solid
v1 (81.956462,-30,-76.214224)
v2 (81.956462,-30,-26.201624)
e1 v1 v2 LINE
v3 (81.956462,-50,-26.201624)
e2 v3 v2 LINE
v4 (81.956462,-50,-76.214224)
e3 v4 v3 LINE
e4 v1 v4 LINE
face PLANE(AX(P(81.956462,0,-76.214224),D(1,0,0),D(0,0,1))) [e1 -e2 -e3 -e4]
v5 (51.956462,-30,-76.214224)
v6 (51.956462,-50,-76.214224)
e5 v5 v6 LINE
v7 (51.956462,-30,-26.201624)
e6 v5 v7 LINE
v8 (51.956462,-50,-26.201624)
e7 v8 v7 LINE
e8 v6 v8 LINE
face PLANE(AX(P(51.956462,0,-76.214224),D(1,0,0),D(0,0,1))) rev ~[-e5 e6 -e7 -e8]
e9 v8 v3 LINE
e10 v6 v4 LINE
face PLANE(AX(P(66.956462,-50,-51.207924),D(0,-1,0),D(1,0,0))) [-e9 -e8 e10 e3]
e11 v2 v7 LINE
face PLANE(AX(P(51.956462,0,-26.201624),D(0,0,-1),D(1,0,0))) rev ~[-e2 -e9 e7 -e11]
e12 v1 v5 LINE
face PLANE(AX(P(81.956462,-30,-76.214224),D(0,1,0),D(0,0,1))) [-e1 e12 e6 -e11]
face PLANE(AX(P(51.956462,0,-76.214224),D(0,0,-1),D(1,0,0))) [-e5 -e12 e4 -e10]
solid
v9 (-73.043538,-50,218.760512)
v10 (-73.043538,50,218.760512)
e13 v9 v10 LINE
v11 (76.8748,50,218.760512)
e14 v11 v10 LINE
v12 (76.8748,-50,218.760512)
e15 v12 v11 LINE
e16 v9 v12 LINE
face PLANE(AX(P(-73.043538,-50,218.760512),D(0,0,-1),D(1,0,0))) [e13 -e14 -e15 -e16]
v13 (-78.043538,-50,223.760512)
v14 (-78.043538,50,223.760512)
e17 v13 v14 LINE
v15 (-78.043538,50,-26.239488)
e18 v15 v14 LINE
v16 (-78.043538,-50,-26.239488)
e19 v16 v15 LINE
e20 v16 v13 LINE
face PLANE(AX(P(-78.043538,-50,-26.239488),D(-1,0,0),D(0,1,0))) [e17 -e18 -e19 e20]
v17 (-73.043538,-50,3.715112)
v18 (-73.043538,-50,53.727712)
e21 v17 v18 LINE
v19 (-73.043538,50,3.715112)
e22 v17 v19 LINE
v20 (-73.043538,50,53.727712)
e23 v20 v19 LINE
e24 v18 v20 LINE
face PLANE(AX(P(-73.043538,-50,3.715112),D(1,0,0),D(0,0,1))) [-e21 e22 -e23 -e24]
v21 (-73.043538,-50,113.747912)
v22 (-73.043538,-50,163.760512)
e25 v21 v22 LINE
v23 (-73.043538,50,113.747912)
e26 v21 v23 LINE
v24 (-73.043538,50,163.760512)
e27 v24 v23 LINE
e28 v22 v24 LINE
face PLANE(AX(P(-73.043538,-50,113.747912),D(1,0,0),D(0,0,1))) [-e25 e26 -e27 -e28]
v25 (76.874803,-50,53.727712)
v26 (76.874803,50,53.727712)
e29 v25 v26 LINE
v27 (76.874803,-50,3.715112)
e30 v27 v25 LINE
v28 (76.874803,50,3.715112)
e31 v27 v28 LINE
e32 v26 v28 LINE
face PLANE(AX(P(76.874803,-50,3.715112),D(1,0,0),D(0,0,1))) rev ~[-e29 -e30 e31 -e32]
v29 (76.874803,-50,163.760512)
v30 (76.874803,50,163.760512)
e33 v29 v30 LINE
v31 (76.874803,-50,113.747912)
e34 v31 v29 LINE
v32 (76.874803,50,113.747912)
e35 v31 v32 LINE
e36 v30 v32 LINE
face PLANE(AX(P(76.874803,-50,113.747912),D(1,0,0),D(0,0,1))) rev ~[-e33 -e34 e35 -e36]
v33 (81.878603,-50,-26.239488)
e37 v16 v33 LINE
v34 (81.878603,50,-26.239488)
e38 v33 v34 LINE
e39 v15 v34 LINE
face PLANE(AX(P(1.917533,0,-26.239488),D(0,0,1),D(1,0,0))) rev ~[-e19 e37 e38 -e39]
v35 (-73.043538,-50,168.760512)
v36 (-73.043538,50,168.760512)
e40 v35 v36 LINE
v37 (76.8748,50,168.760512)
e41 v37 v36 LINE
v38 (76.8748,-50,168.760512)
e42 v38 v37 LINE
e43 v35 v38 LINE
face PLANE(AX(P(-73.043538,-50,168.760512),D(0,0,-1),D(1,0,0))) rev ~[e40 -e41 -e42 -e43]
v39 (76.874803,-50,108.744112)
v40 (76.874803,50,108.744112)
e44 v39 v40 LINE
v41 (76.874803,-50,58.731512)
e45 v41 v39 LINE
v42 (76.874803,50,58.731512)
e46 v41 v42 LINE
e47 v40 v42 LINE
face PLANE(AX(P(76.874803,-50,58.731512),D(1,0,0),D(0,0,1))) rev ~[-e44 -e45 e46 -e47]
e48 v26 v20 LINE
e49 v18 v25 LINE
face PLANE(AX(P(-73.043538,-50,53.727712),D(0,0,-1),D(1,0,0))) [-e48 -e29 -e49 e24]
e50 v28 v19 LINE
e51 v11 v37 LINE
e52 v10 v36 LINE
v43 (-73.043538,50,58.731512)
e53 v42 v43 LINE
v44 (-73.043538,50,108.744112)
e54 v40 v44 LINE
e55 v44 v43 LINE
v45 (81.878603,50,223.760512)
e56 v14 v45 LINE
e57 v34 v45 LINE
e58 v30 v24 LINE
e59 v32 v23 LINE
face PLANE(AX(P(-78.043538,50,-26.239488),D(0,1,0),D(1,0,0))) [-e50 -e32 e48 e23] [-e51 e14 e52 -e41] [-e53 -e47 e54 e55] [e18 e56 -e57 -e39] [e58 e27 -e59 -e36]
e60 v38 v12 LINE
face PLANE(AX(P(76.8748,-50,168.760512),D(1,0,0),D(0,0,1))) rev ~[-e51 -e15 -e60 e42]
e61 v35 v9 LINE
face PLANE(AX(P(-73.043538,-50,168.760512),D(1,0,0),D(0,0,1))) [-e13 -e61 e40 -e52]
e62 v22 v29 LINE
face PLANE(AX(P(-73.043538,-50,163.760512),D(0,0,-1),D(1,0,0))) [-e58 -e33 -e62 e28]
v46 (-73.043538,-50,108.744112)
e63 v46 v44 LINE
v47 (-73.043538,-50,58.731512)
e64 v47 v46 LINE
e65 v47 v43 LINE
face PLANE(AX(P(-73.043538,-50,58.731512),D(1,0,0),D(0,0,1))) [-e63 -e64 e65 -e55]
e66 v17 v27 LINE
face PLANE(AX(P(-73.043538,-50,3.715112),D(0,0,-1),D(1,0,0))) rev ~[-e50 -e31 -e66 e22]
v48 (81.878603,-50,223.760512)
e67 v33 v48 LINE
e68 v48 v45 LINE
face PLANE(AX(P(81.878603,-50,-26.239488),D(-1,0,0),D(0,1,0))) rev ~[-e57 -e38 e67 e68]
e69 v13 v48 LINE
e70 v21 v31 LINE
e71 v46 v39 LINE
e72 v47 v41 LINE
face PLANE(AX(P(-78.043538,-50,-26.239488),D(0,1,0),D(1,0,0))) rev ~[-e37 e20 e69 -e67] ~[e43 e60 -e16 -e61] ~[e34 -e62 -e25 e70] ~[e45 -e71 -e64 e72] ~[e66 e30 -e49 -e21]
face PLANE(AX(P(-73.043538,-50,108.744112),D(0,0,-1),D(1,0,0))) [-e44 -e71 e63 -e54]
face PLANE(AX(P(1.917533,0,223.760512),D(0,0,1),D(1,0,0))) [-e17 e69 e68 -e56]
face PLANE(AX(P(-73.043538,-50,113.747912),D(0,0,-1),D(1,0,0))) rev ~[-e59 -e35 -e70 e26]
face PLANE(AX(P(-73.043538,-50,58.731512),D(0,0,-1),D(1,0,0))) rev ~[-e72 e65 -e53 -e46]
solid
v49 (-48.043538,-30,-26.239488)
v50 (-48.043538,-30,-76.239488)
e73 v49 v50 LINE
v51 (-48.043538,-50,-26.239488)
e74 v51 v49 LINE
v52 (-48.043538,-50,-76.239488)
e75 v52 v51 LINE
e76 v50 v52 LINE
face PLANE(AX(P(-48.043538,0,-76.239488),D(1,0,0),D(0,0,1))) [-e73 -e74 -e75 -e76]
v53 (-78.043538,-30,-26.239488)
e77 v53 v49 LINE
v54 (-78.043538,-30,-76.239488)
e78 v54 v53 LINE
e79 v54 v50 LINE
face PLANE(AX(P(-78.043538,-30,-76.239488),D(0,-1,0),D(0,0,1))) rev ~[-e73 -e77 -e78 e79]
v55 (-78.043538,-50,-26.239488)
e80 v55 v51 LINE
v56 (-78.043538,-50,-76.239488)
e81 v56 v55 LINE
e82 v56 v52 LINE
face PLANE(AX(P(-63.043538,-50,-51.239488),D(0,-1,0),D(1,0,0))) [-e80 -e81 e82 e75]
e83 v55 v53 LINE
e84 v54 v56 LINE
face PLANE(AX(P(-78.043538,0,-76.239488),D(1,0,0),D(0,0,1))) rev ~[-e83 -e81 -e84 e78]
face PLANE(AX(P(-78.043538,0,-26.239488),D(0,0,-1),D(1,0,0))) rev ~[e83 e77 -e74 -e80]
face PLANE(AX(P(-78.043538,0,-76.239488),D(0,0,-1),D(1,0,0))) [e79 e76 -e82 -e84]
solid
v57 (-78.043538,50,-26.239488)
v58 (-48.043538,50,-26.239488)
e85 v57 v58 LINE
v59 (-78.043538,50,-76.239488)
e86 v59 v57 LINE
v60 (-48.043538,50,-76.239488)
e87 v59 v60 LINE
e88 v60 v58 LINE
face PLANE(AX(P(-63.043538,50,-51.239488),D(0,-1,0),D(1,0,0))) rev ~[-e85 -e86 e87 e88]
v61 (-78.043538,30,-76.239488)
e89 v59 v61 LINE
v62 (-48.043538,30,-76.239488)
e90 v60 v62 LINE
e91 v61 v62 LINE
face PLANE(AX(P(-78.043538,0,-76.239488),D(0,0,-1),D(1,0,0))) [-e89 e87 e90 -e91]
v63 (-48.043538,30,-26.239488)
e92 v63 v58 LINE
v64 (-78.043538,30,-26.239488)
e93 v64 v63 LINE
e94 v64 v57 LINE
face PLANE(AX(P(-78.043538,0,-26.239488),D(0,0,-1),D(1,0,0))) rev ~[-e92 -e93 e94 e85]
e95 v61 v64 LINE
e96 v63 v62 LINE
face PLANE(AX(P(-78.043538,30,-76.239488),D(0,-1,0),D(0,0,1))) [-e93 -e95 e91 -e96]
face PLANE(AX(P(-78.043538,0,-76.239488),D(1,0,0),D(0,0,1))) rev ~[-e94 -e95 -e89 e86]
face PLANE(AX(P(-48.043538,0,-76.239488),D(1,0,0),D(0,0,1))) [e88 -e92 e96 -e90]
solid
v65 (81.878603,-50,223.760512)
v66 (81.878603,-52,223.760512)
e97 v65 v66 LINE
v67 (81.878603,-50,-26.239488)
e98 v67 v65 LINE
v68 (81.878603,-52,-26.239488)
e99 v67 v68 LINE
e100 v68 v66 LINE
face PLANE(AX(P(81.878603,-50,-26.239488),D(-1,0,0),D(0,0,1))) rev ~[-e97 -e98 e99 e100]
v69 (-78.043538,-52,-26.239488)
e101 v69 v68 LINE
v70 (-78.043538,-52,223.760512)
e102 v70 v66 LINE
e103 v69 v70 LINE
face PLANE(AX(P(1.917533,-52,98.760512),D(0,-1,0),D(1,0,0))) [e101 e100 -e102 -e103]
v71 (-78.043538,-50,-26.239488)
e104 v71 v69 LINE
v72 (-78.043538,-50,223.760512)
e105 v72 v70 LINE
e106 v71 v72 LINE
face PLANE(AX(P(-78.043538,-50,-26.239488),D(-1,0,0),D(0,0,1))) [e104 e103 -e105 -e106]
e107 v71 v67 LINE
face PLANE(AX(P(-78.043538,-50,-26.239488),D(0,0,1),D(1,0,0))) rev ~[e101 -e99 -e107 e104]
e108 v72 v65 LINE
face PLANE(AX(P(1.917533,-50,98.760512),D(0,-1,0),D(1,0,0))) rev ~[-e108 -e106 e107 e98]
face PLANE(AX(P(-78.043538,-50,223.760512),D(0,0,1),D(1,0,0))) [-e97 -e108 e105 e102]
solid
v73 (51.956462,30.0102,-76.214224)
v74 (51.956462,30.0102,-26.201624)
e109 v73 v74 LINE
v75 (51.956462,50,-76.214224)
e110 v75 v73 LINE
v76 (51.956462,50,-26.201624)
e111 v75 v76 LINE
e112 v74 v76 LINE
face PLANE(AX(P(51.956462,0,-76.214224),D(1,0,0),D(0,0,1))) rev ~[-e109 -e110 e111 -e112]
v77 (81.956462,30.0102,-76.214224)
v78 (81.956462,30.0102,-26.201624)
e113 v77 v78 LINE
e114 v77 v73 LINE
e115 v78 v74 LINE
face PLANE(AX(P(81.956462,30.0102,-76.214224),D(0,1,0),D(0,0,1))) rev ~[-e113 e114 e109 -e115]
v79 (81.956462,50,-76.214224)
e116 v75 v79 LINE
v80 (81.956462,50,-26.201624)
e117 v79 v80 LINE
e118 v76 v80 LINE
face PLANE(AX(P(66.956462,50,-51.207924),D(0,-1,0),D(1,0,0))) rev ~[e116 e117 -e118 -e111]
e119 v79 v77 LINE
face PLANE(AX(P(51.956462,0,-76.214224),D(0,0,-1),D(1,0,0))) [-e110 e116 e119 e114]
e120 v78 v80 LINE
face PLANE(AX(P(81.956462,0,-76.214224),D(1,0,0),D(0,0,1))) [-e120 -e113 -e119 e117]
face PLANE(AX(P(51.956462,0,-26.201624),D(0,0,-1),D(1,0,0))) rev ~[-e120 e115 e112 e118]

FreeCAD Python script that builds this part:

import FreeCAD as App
import Part
import Sketcher

doc = App.newDocument("Part")
body = doc.addObject("PartDesign::Body", "Body")
body.AllowCompound = True

# Sketch on XZ plane
sketch1 = doc.addObject("Sketcher::SketchObject", "Sketch")
body.addObject(sketch1)
sketch1.AttachmentSupport = (doc.XZ_Plane, [""])
sketch1.MapMode = "FlatFace"
sketch1.addGeometry([
    Part.LineSegment(App.Vector(-78, -26, 0), App.Vector(-78, -76, 0)),
    Part.LineSegment(App.Vector(-78, -76, 0), App.Vector(-48, -76, 0)),
    Part.LineSegment(App.Vector(-48, -76, 0), App.Vector(-48, -26, 0)),
    Part.LineSegment(App.Vector(-48, -26, 0), App.Vector(-78, -26, 0)),
], False)
sketch1.addConstraint([
    Sketcher.Constraint("Coincident", 0, 2, 1, 1),
    Sketcher.Constraint("Coincident", 1, 2, 2, 1),
    Sketcher.Constraint("Coincident", 2, 2, 3, 1),
    Sketcher.Constraint("Coincident", 3, 2, 0, 1),
    Sketcher.Constraint("Vertical", 0),
    Sketcher.Constraint("Horizontal", 1),
    Sketcher.Constraint("Vertical", 2),
    Sketcher.Constraint("Horizontal", 3),
    Sketcher.Constraint("DistanceX", 1, 1, 1, 2, 30.0),
    Sketcher.Constraint("DistanceY", 0, 2, 0, 1, 50.0),
    Sketcher.Constraint("DistanceX", 0, 2, -1, 1, 78.043538),
    Sketcher.Constraint("DistanceY", 0, 2, -1, 1, 76.239488),
])
pad1 = doc.addObject("PartDesign::Pad", "Pad")
body.addObject(pad1)
pad1.Profile = sketch1
pad1.Length = 100
pad1.Midplane = True

# Sketch on YZ plane
sketch2 = doc.addObject("Sketcher::SketchObject", "Sketch001")
body.addObject(sketch2)
sketch2.AttachmentSupport = (doc.YZ_Plane, [""])
sketch2.MapMode = "FlatFace"
sketch2.AttachmentOffset = App.Placement(App.Vector(0, 0, -78.043538), App.Rotation())
sketch2.addGeometry([
    Part.LineSegment(App.Vector(30, -26, 0), App.Vector(30, -76, 0)),
    Part.LineSegment(App.Vector(30, -76, 0), App.Vector(-30, -76, 0)),
    Part.LineSegment(App.Vector(-30, -76, 0), App.Vector(-30, -26, 0)),
    Part.LineSegment(App.Vector(-30, -26, 0), App.Vector(30, -26, 0)),
], False)
sketch2.addConstraint([
    Sketcher.Constraint("Coincident", 0, 2, 1, 1),
    Sketcher.Constraint("Coincident", 1, 2, 2, 1),
    Sketcher.Constraint("Coincident", 2, 2, 3, 1),
    Sketcher.Constraint("Coincident", 3, 2, 0, 1),
    Sketcher.Constraint("Vertical", 0),
    Sketcher.Constraint("Horizontal", 1),
    Sketcher.Constraint("Vertical", 2),
    Sketcher.Constraint("Horizontal", 3),
    Sketcher.Constraint("DistanceX", 1, 2, 1, 1, 60.0),
    Sketcher.Constraint("DistanceY", 0, 2, 0, 1, 50.0),
    Sketcher.Constraint("DistanceX", -1, 1, 0, 2, 30.0),
    Sketcher.Constraint("DistanceY", 0, 2, -1, 1, 76.239488),
])
pocket1 = doc.addObject("PartDesign::Pocket", "Pocket")
body.addObject(pocket1)
pocket1.Profile = sketch2
pocket1.Type = "ThroughAll"
pocket1.Reversed = True
body2 = doc.addObject("PartDesign::Body", "Body001")
body2.AllowCompound = True

# Sketch on XZ plane
sketch3 = doc.addObject("Sketcher::SketchObject", "Sketch002")
body2.addObject(sketch3)
sketch3.AttachmentSupport = (doc.getObject("XZ_Plane001"), [""])
sketch3.MapMode = "FlatFace"
sketch3.addGeometry([
    Part.LineSegment(App.Vector(52, -26, 0), App.Vector(52, -76, 0)),
    Part.LineSegment(App.Vector(52, -76, 0), App.Vector(82, -76, 0)),
    Part.LineSegment(App.Vector(82, -76, 0), App.Vector(82, -26, 0)),
    Part.LineSegment(App.Vector(82, -26, 0), App.Vector(52, -26, 0)),
], False)
sketch3.addConstraint([
    Sketcher.Constraint("Coincident", 0, 2, 1, 1),
    Sketcher.Constraint("Coincident", 1, 2, 2, 1),
    Sketcher.Constraint("Coincident", 2, 2, 3, 1),
    Sketcher.Constraint("Coincident", 3, 2, 0, 1),
    Sketcher.Constraint("Vertical", 0),
    Sketcher.Constraint("Horizontal", 1),
    Sketcher.Constraint("Vertical", 2),
    Sketcher.Constraint("Horizontal", 3),
    Sketcher.Constraint("DistanceX", 1, 1, 1, 2, 30.0),
    Sketcher.Constraint("DistanceY", 0, 2, 0, 1, 50.0126),
    Sketcher.Constraint("DistanceX", -1, 1, 0, 2, 51.956462),
    Sketcher.Constraint("DistanceY", 0, 2, -1, 1, 76.214224),
])
pad2 = doc.addObject("PartDesign::Pad", "Pad001")
body2.addObject(pad2)
pad2.Profile = sketch3
pad2.Length = 100
pad2.Midplane = True

# Sketch on YZ plane
sketch4 = doc.addObject("Sketcher::SketchObject", "Sketch003")
body2.addObject(sketch4)
sketch4.AttachmentSupport = (doc.getObject("YZ_Plane001"), [""])
sketch4.MapMode = "FlatFace"
sketch4.AttachmentOffset = App.Placement(App.Vector(0, 0, 81.956462), App.Rotation())
sketch4.addGeometry([
    Part.LineSegment(App.Vector(-30, -26, 0), App.Vector(-30, -76, 0)),
    Part.LineSegment(App.Vector(-30, -76, 0), App.Vector(30, -76, 0)),
    Part.LineSegment(App.Vector(30, -76, 0), App.Vector(30, -26, 0)),
    Part.LineSegment(App.Vector(30, -26, 0), App.Vector(-30, -26, 0)),
], False)
sketch4.addConstraint([
    Sketcher.Constraint("Coincident", 0, 2, 1, 1),
    Sketcher.Constraint("Coincident", 1, 2, 2, 1),
    Sketcher.Constraint("Coincident", 2, 2, 3, 1),
    Sketcher.Constraint("Coincident", 3, 2, 0, 1),
    Sketcher.Constraint("Vertical", 0),
    Sketcher.Constraint("Horizontal", 1),
    Sketcher.Constraint("Vertical", 2),
    Sketcher.Constraint("Horizontal", 3),
    Sketcher.Constraint("DistanceX", 0, 2, -1, 1, 30.0),
    Sketcher.Constraint("DistanceX", 1, 1, 1, 2, 60.0102),
    Sketcher.Constraint("DistanceY", 0, 2, 0, 1, 50.0126),
    Sketcher.Constraint("DistanceY", 0, 2, -1, 1, 76.214224),
])
pocket2 = doc.addObject("PartDesign::Pocket", "Pocket001")
body2.addObject(pocket2)
pocket2.Profile = sketch4
pocket2.Type = "ThroughAll"
body3 = doc.addObject("PartDesign::Body", "Body002")

# Sketch on XY plane
sketch5 = doc.addObject("Sketcher::SketchObject", "Sketch004")
body3.addObject(sketch5)
sketch5.AttachmentSupport = (doc.getObject("XY_Plane002"), [""])
sketch5.MapMode = "FlatFace"
sketch5.AttachmentOffset = App.Placement(App.Vector(0, 0, -26.239488), App.Rotation())
sketch5.addGeometry([
    Part.LineSegment(App.Vector(-78, 50, 0), App.Vector(-78, -50, 0)),
    Part.LineSegment(App.Vector(-78, -50, 0), App.Vector(82, -50, 0)),
    Part.LineSegment(App.Vector(82, -50, 0), App.Vector(82, 50, 0)),
    Part.LineSegment(App.Vector(82, 50, 0), App.Vector(-78, 50, 0)),
], False)
sketch5.addConstraint([
    Sketcher.Constraint("Coincident", 0, 2, 1, 1),
    Sketcher.Constraint("Coincident", 1, 2, 2, 1),
    Sketcher.Constraint("Coincident", 2, 2, 3, 1),
    Sketcher.Constraint("Coincident", 3, 2, 0, 1),
    Sketcher.Constraint("Vertical", 0),
    Sketcher.Constraint("Horizontal", 1),
    Sketcher.Constraint("Vertical", 2),
    Sketcher.Constraint("Horizontal", 3),
    Sketcher.Constraint("DistanceY", 0, 2, 0, 1, 100.0),
    Sketcher.Constraint("DistanceY", 0, 2, -1, 1, 50.0),
    Sketcher.Constraint("DistanceX", 1, 1, 1, 2, 159.92214),
    Sketcher.Constraint("DistanceX", 0, 2, -1, 1, 78.043538),
])
pad3 = doc.addObject("PartDesign::Pad", "Pad002")
body3.addObject(pad3)
pad3.Profile = sketch5
pad3.Length = 250

# Sketch on XZ plane
sketch6 = doc.addObject("Sketcher::SketchObject", "Sketch005")
body3.addObject(sketch6)
sketch6.AttachmentSupport = (doc.getObject("XZ_Plane002"), [""])
sketch6.MapMode = "FlatFace"
sketch6.AttachmentOffset = App.Placement(App.Vector(0, 0, 50), App.Rotation())
sketch6.addGeometry([
    Part.LineSegment(App.Vector(-73, 219, 0), App.Vector(-73, 169, 0)),
    Part.LineSegment(App.Vector(-73, 169, 0), App.Vector(77, 169, 0)),
    Part.LineSegment(App.Vector(77, 169, 0), App.Vector(77, 219, 0)),
    Part.LineSegment(App.Vector(77, 219, 0), App.Vector(-73, 219, 0)),
], False)
sketch6.addConstraint([
    Sketcher.Constraint("Coincident", 0, 2, 1, 1),
    Sketcher.Constraint("Coincident", 1, 2, 2, 1),
    Sketcher.Constraint("Coincident", 2, 2, 3, 1),
    Sketcher.Constraint("Coincident", 3, 2, 0, 1),
    Sketcher.Constraint("Vertical", 0),
    Sketcher.Constraint("Horizontal", 1),
    Sketcher.Constraint("Vertical", 2),
    Sketcher.Constraint("Horizontal", 3),
    Sketcher.Constraint("DistanceY", 0, 2, 0, 1, 50.0),
    Sketcher.Constraint("DistanceX", -1, 1, 1, 2, 76.8748),
    Sketcher.Constraint("DistanceX", 1, 1, 1, 2, 149.918337),
    Sketcher.Constraint("DistanceY", -1, 1, 0, 2, 168.760512),
])
pocket3 = doc.addObject("PartDesign::Pocket", "Pocket002")
body3.addObject(pocket3)
pocket3.Profile = sketch6
pocket3.Type = "ThroughAll"

# Sketch on XZ plane
sketch7 = doc.addObject("Sketcher::SketchObject", "Sketch006")
body3.addObject(sketch7)
sketch7.AttachmentSupport = (doc.getObject("XZ_Plane002"), [""])
sketch7.MapMode = "FlatFace"
sketch7.AttachmentOffset = App.Placement(App.Vector(0, 0, 50), App.Rotation())
sketch7.addGeometry([
    Part.LineSegment(App.Vector(-73, 164, 0), App.Vector(-73, 114, 0)),
    Part.LineSegment(App.Vector(-73, 114, 0), App.Vector(77, 114, 0)),
    Part.LineSegment(App.Vector(77, 114, 0), App.Vector(77, 164, 0)),
    Part.LineSegment(App.Vector(77, 164, 0), App.Vector(-73, 164, 0)),
], False)
sketch7.addConstraint([
    Sketcher.Constraint("Coincident", 0, 2, 1, 1),
    Sketcher.Constraint("Coincident", 1, 2, 2, 1),
    Sketcher.Constraint("Coincident", 2, 2, 3, 1),
    Sketcher.Constraint("Coincident", 3, 2, 0, 1),
    Sketcher.Constraint("Vertical", 0),
    Sketcher.Constraint("Horizontal", 1),
    Sketcher.Constraint("Vertical", 2),
    Sketcher.Constraint("Horizontal", 3),
    Sketcher.Constraint("DistanceY", 0, 2, 0, 1, 50.0126),
    Sketcher.Constraint("DistanceX", 1, 1, 1, 2, 149.91834),
    Sketcher.Constraint("DistanceX", 0, 2, -1, 1, 73.043538),
    Sketcher.Constraint("DistanceY", -1, 1, 0, 2, 113.747912),
])
pocket4 = doc.addObject("PartDesign::Pocket", "Pocket003")
body3.addObject(pocket4)
pocket4.Profile = sketch7
pocket4.Type = "ThroughAll"

# Sketch on XZ plane
sketch8 = doc.addObject("Sketcher::SketchObject", "Sketch007")
body3.addObject(sketch8)
sketch8.AttachmentSupport = (doc.getObject("XZ_Plane002"), [""])
sketch8.MapMode = "FlatFace"
sketch8.AttachmentOffset = App.Placement(App.Vector(0, 0, 50), App.Rotation())
sketch8.addGeometry([
    Part.LineSegment(App.Vector(-73, 109, 0), App.Vector(-73, 59, 0)),
    Part.LineSegment(App.Vector(-73, 59, 0), App.Vector(77, 59, 0)),
    Part.LineSegment(App.Vector(77, 59, 0), App.Vector(77, 109, 0)),
    Part.LineSegment(App.Vector(77, 109, 0), App.Vector(-73, 109, 0)),
], False)
sketch8.addConstraint([
    Sketcher.Constraint("Coincident", 0, 2, 1, 1),
    Sketcher.Constraint("Coincident", 1, 2, 2, 1),
    Sketcher.Constraint("Coincident", 2, 2, 3, 1),
    Sketcher.Constraint("Coincident", 3, 2, 0, 1),
    Sketcher.Constraint("Vertical", 0),
    Sketcher.Constraint("Horizontal", 1),
    Sketcher.Constraint("Vertical", 2),
    Sketcher.Constraint("Horizontal", 3),
    Sketcher.Constraint("DistanceY", 0, 2, 0, 1, 50.0126),
    Sketcher.Constraint("DistanceX", 1, 1, 1, 2, 149.91834),
    Sketcher.Constraint("DistanceX", 0, 2, -1, 1, 73.043538),
    Sketcher.Constraint("DistanceY", -1, 1, 0, 2, 58.731512),
])
pocket5 = doc.addObject("PartDesign::Pocket", "Pocket004")
body3.addObject(pocket5)
pocket5.Profile = sketch8
pocket5.Type = "ThroughAll"

# Sketch on XZ plane
sketch9 = doc.addObject("Sketcher::SketchObject", "Sketch008")
body3.addObject(sketch9)
sketch9.AttachmentSupport = (doc.getObject("XZ_Plane002"), [""])
sketch9.MapMode = "FlatFace"
sketch9.AttachmentOffset = App.Placement(App.Vector(0, 0, 50), App.Rotation())
sketch9.addGeometry([
    Part.LineSegment(App.Vector(-73, 54, 0), App.Vector(-73, 4, 0)),
    Part.LineSegment(App.Vector(-73, 4, 0), App.Vector(77, 4, 0)),
    Part.LineSegment(App.Vector(77, 4, 0), App.Vector(77, 54, 0)),
    Part.LineSegment(App.Vector(77, 54, 0), App.Vector(-73, 54, 0)),
], False)
sketch9.addConstraint([
    Sketcher.Constraint("Coincident", 0, 2, 1, 1),
    Sketcher.Constraint("Coincident", 1, 2, 2, 1),
    Sketcher.Constraint("Coincident", 2, 2, 3, 1),
    Sketcher.Constraint("Coincident", 3, 2, 0, 1),
    Sketcher.Constraint("Vertical", 0),
    Sketcher.Constraint("Horizontal", 1),
    Sketcher.Constraint("Vertical", 2),
    Sketcher.Constraint("Horizontal", 3),
    Sketcher.Constraint("DistanceY", 0, 2, 0, 1, 50.0126),
    Sketcher.Constraint("DistanceX", 1, 1, 1, 2, 149.91834),
    Sketcher.Constraint("DistanceX", 0, 2, -1, 1, 73.043538),
    Sketcher.Constraint("DistanceY", -1, 1, 0, 2, 3.715112),
])
pocket6 = doc.addObject("PartDesign::Pocket", "Pocket005")
body3.addObject(pocket6)
pocket6.Profile = sketch9
pocket6.Type = "ThroughAll"
body4 = doc.addObject("PartDesign::Body", "Body003")

# Sketch on XZ plane
sketch10 = doc.addObject("Sketcher::SketchObject", "Sketch009")
body4.addObject(sketch10)
sketch10.AttachmentSupport = (doc.getObject("XZ_Plane003"), [""])
sketch10.MapMode = "FlatFace"
sketch10.AttachmentOffset = App.Placement(App.Vector(0, 0, 50), App.Rotation())
sketch10.addGeometry([
    Part.LineSegment(App.Vector(-78, 224, 0), App.Vector(-78, -26, 0)),
    Part.LineSegment(App.Vector(-78, -26, 0), App.Vector(82, -26, 0)),
    Part.LineSegment(App.Vector(82, -26, 0), App.Vector(82, 224, 0)),
    Part.LineSegment(App.Vector(82, 224, 0), App.Vector(-78, 224, 0)),
], False)
sketch10.addConstraint([
    Sketcher.Constraint("Coincident", 0, 2, 1, 1),
    Sketcher.Constraint("Coincident", 1, 2, 2, 1),
    Sketcher.Constraint("Coincident", 2, 2, 3, 1),
    Sketcher.Constraint("Coincident", 3, 2, 0, 1),
    Sketcher.Constraint("Vertical", 0),
    Sketcher.Constraint("Horizontal", 1),
    Sketcher.Constraint("Vertical", 2),
    Sketcher.Constraint("Horizontal", 3),
    Sketcher.Constraint("DistanceY", 0, 2, 0, 1, 250.0),
    Sketcher.Constraint("DistanceX", 1, 1, 1, 2, 159.92214),
    Sketcher.Constraint("DistanceX", 0, 2, -1, 1, 78.043538),
    Sketcher.Constraint("DistanceY", 0, 2, -1, 1, 26.239488),
])
pad4 = doc.addObject("PartDesign::Pad", "Pad003")
body4.addObject(pad4)
pad4.Profile = sketch10
pad4.Length = 2

doc.recompute()
